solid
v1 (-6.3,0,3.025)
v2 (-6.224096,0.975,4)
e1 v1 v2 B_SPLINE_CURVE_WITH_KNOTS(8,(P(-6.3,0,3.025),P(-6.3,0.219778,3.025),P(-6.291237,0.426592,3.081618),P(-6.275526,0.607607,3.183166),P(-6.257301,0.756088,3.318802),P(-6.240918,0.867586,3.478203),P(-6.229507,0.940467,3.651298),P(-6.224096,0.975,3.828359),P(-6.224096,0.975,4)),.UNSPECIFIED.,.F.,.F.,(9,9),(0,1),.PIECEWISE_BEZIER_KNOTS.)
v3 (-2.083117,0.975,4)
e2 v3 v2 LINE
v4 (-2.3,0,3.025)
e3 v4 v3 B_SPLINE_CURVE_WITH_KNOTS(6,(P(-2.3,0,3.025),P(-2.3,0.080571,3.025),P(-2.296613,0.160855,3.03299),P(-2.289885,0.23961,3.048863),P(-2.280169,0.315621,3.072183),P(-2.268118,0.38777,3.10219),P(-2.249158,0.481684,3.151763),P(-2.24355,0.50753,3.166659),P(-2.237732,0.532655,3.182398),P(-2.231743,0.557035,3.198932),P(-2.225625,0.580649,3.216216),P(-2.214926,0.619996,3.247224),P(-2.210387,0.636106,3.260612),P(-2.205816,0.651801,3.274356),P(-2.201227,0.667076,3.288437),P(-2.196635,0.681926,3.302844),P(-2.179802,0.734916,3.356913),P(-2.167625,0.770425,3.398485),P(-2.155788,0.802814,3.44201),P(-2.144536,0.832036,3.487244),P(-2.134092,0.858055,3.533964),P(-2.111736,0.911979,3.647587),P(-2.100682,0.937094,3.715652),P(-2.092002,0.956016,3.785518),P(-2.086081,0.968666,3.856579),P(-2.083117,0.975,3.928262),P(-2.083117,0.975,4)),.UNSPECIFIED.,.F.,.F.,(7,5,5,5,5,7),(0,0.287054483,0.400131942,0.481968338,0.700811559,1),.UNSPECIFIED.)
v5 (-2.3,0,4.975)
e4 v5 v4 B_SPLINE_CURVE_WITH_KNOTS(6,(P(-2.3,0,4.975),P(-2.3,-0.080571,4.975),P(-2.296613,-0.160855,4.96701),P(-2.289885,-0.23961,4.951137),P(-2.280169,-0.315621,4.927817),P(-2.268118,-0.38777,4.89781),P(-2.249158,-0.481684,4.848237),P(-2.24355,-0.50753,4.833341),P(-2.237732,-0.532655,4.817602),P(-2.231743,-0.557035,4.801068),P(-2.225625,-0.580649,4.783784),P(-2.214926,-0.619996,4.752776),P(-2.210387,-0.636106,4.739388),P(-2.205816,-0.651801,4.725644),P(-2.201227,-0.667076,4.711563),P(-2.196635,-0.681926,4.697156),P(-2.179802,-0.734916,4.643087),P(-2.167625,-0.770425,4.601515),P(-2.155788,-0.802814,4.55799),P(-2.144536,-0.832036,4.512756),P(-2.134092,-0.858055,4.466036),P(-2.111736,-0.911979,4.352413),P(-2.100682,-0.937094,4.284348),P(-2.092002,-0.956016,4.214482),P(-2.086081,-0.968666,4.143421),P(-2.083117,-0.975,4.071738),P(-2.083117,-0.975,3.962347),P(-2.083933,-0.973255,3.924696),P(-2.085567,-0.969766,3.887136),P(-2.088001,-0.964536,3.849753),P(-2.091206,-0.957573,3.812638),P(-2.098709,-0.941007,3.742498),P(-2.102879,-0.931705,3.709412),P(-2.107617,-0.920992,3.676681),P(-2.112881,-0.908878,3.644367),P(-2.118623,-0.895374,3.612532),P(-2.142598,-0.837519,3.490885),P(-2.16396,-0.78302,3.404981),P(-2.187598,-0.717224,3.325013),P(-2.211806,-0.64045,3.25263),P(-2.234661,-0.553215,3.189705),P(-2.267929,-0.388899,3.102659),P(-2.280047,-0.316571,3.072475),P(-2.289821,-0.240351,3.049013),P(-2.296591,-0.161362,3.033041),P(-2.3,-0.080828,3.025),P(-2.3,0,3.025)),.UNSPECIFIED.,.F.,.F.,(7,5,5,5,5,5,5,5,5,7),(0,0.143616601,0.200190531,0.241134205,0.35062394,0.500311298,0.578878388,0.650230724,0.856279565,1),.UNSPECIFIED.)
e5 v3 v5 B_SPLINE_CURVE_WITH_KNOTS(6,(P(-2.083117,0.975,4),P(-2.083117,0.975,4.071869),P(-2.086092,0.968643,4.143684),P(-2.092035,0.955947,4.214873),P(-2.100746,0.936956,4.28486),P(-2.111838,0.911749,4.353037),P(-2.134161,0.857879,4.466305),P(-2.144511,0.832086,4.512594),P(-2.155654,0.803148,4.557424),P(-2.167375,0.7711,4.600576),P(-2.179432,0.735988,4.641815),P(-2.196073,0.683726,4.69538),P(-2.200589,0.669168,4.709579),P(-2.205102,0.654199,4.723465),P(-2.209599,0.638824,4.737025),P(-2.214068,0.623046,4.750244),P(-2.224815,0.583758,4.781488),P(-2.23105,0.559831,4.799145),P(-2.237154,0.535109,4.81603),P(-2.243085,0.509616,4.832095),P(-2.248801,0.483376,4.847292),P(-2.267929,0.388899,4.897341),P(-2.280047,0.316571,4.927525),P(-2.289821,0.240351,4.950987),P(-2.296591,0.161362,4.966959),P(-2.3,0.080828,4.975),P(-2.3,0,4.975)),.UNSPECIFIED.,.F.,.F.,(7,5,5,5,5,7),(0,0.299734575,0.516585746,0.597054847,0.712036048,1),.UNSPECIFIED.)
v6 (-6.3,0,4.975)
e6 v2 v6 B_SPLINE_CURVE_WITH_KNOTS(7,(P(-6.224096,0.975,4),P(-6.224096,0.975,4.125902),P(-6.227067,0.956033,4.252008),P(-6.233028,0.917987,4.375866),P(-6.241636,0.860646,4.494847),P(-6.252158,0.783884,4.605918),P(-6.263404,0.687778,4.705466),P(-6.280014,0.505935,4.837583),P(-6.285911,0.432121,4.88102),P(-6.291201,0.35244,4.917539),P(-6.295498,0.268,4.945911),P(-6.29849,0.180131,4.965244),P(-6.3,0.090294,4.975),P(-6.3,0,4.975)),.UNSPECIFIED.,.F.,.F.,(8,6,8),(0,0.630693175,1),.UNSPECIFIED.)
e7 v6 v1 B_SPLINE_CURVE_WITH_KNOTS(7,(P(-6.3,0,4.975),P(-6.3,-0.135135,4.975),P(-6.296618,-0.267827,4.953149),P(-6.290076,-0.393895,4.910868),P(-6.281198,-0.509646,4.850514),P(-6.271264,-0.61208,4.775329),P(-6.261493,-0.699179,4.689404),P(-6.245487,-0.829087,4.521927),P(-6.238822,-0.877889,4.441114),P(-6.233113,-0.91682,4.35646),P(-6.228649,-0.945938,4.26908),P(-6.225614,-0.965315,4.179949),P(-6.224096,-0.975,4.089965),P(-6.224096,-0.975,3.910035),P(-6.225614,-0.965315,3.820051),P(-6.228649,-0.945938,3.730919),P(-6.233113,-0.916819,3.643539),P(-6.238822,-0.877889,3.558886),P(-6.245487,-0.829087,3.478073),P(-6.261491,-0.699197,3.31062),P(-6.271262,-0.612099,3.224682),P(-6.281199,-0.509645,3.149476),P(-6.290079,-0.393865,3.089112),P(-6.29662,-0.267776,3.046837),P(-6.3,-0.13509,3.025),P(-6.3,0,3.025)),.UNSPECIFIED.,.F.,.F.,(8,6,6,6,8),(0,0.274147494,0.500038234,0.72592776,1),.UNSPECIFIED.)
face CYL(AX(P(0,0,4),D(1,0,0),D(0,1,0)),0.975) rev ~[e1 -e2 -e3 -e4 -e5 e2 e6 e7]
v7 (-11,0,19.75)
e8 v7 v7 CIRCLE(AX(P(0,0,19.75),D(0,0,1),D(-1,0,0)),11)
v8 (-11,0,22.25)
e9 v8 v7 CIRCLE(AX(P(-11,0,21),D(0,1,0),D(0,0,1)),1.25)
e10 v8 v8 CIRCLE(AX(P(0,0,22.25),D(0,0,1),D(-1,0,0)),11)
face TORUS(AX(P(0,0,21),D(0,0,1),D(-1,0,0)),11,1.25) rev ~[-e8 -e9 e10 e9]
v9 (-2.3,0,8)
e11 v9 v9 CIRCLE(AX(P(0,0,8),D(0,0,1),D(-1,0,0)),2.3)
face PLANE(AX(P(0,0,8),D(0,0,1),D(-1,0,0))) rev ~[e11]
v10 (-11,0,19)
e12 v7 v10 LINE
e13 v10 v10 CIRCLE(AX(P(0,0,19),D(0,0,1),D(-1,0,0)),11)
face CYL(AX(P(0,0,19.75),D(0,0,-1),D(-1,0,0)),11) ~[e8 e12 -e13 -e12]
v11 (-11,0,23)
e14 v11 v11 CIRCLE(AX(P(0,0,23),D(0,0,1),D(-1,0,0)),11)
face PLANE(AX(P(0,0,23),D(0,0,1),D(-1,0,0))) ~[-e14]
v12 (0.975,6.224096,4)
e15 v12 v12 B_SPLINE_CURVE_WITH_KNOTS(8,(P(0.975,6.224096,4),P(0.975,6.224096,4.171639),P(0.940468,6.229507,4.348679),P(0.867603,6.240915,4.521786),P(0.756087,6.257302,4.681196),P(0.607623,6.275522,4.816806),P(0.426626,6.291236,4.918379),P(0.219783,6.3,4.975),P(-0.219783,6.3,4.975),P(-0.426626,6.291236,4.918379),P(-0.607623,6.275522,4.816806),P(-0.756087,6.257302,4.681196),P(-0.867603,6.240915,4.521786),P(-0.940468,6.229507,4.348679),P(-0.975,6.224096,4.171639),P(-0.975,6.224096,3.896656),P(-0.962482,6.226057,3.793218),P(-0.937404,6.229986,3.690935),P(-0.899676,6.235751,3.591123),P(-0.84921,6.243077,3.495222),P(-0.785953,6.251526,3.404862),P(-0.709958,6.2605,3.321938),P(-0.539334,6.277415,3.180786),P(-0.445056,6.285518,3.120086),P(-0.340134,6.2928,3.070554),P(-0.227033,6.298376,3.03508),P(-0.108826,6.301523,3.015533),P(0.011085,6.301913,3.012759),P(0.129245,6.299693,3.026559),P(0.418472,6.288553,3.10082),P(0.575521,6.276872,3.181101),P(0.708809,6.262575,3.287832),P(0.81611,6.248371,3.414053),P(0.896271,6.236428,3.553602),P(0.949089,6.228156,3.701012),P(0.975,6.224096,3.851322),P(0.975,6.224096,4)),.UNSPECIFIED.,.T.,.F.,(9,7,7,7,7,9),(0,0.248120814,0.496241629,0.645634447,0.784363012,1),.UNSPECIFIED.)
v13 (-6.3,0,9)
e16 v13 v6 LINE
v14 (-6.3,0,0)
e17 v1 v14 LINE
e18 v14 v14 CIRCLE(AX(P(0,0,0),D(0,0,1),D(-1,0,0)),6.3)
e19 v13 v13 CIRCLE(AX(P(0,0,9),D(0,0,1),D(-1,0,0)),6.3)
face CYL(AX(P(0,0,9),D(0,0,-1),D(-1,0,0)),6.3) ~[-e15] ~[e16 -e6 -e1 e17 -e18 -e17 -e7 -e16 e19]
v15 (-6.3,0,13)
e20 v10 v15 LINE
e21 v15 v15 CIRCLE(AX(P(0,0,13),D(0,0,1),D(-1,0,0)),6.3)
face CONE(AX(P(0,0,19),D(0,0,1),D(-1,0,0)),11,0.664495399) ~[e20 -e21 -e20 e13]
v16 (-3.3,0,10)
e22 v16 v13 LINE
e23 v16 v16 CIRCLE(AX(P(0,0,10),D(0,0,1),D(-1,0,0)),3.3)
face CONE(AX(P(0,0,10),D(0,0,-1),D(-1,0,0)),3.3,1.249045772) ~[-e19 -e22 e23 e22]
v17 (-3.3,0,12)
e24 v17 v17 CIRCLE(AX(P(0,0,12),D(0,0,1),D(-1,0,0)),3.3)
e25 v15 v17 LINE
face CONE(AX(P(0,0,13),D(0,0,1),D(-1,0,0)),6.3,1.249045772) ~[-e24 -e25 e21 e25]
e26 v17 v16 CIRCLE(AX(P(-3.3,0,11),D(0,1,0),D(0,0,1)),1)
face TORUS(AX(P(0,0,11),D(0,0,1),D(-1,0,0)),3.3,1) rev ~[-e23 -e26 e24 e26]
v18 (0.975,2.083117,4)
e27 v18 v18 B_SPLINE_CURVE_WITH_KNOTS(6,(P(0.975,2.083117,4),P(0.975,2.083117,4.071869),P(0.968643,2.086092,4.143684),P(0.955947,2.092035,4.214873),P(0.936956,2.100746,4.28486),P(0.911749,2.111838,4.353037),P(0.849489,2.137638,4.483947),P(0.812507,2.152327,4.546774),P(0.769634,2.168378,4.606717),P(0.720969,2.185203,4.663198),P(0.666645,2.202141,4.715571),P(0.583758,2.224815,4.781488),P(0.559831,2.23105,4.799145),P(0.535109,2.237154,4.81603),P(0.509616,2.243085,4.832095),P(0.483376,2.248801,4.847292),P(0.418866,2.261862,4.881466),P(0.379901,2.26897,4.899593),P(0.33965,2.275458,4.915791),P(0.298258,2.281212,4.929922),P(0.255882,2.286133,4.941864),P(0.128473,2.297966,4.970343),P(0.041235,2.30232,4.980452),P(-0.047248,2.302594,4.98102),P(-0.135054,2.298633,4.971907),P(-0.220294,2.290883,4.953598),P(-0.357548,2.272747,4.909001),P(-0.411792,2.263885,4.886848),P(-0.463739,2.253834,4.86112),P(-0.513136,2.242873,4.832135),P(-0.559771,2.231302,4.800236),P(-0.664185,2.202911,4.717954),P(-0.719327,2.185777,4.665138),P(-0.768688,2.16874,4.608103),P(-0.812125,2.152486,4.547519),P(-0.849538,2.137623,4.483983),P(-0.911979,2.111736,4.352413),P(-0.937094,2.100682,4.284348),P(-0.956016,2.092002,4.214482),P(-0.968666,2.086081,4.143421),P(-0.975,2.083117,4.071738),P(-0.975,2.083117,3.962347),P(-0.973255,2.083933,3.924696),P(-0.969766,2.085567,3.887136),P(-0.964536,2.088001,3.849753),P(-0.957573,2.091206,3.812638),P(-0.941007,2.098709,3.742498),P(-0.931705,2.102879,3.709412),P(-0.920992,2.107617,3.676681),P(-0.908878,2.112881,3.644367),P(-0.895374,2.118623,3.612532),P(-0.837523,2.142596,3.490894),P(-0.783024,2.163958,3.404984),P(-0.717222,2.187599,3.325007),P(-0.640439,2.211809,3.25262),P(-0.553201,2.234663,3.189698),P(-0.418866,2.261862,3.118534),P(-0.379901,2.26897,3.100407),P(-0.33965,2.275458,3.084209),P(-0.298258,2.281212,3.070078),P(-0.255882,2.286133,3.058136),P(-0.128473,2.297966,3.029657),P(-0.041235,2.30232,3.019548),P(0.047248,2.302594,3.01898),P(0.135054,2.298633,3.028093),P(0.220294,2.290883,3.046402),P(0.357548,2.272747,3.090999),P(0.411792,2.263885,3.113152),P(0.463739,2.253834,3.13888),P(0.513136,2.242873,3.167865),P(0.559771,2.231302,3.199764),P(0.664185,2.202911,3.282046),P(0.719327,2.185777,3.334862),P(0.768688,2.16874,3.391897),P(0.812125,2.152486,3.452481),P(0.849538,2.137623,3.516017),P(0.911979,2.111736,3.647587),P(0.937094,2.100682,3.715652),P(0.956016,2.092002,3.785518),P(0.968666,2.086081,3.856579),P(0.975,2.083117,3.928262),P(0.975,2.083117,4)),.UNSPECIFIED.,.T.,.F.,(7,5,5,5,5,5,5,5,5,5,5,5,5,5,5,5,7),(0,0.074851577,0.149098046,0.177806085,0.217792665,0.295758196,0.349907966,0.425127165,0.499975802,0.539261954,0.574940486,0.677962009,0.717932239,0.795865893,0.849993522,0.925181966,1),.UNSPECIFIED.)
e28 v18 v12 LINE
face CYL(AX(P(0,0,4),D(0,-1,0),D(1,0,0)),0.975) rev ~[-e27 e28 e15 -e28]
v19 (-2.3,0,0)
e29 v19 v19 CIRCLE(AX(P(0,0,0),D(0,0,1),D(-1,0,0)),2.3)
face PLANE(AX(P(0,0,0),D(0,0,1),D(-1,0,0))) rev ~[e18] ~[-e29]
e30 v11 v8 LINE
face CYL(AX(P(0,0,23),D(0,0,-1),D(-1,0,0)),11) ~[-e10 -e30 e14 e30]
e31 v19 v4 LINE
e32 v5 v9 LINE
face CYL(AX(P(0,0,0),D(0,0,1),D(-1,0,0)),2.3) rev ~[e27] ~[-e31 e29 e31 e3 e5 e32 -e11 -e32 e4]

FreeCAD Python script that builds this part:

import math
import FreeCAD as App
import Part
import Sketcher
from FreeCAD import Vector
Q = App.Units.Quantity

doc = App.newDocument("Part")
body = doc.addObject("PartDesign::Body", "Body")

sketch1 = body.newObject("Sketcher::SketchObject", "Sketch")
sketch1.AttachmentSupport = (doc.getObject("XZ_Plane"), [""])
sketch1.MapMode = "FlatFace"
sketch1.addGeometry(Part.LineSegment(Vector(-6.3, 0, 0), Vector(-2.3, 0, 0)), False)
sketch1.addGeometry(Part.LineSegment(Vector(-2.3, 0, 0), Vector(-2.3, 8, 0)), False)
sketch1.addGeometry(Part.LineSegment(Vector(-2.3, 8, 0), Vector(0, 8, 0)), False)
sketch1.addGeometry(Part.LineSegment(Vector(0, 8, 0), Vector(0, 23, 0)), False)
sketch1.addGeometry(Part.LineSegment(Vector(0, 23, 0), Vector(-11, 23, 0)), False)
sketch1.addGeometry(Part.LineSegment(Vector(-11, 23, 0), Vector(-11, 22.25, 0)), False)
sketch1.addGeometry(Part.ArcOfCircle(Part.Circle(Vector(-11, 21, 0), Vector(0, 0, 1), 1.25), math.radians(-90), math.radians(90)), False)
sketch1.addGeometry(Part.LineSegment(Vector(-11, 19.75, 0), Vector(-11, 19, 0)), False)
sketch1.addGeometry(Part.LineSegment(Vector(-11, 19, 0), Vector(-6.3, 13, 0)), False)
sketch1.addGeometry(Part.LineSegment(Vector(-6.3, 13, 0), Vector(-3.3, 12, 0)), False)
sketch1.addGeometry(Part.ArcOfCircle(Part.Circle(Vector(-3.3, 11, 0), Vector(0, 0, 1), 1), math.radians(-90), math.radians(90)), False)
sketch1.addGeometry(Part.LineSegment(Vector(-3.3, 10, 0), Vector(-6.3, 9, 0)), False)
sketch1.addGeometry(Part.LineSegment(Vector(-6.3, 9, 0), Vector(-6.3, 0, 0)), False)
sketch1.addConstraint(Sketcher.Constraint("Coincident", 0, 2, 1, 1))
sketch1.addConstraint(Sketcher.Constraint("Coincident", 1, 2, 2, 1))
sketch1.addConstraint(Sketcher.Constraint("Coincident", 2, 2, 3, 1))
sketch1.addConstraint(Sketcher.Constraint("Coincident", 3, 2, 4, 1))
sketch1.addConstraint(Sketcher.Constraint("Coincident", 4, 2, 5, 1))
sketch1.addConstraint(Sketcher.Constraint("Coincident", 5, 2, 6, 2))
sketch1.addConstraint(Sketcher.Constraint("Coincident", 6, 1, 7, 1))
sketch1.addConstraint(Sketcher.Constraint("Coincident", 7, 2, 8, 1))
sketch1.addConstraint(Sketcher.Constraint("Coincident", 8, 2, 9, 1))
sketch1.addConstraint(Sketcher.Constraint("Coincident", 9, 2, 10, 2))
sketch1.addConstraint(Sketcher.Constraint("Coincident", 10, 1, 11, 1))
sketch1.addConstraint(Sketcher.Constraint("Coincident", 11, 2, 12, 1))
sketch1.addConstraint(Sketcher.Constraint("Coincident", 12, 2, 0, 1))
sketch1.addConstraint(Sketcher.Constraint("Horizontal", 0))
sketch1.addConstraint(Sketcher.Constraint("Vertical", 1))
sketch1.addConstraint(Sketcher.Constraint("Horizontal", 2))
sketch1.addConstraint(Sketcher.Constraint("Vertical", 3))
sketch1.addConstraint(Sketcher.Constraint("Horizontal", 4))
sketch1.addConstraint(Sketcher.Constraint("Vertical", 5))
sketch1.addConstraint(Sketcher.Constraint("Vertical", 7))
sketch1.addConstraint(Sketcher.Constraint("Vertical", 12))
sketch1.addConstraint(Sketcher.Constraint("PointOnObject", 0, 2, -1))
sketch1.addConstraint(Sketcher.Constraint("PointOnObject", 2, 2, -2))
sketch1.addConstraint(Sketcher.Constraint("Vertical", 6, 3, 4, 2))
sketch1.addConstraint(Sketcher.Constraint("Vertical", 5, 2, 6, 1))
sketch1.addConstraint(Sketcher.Constraint("Vertical", 10, 3, 9, 2))
sketch1.addConstraint(Sketcher.Constraint("Vertical", 9, 2, 10, 1))
sketch1.addConstraint(Sketcher.Constraint("Vertical", 8, 2, 11, 2))
sketch1.addConstraint(Sketcher.Constraint("Equal", 5, 7))
sketch1.addConstraint(Sketcher.Constraint("Equal", 9, 11))
sketch1.addConstraint(Sketcher.Constraint("Radius", 10, Q("1 mm")))
sketch1.addConstraint(Sketcher.Constraint("DistanceX", 0, 1, 0, 2, Q("4 mm")))
sketch1.addConstraint(Sketcher.Constraint("DistanceX", 4, 2, 4, 1, Q("11 mm")))
sketch1.addConstraint(Sketcher.Constraint("DistanceY", 1, 1, 1, 2, Q("8 mm")))
sketch1.addConstraint(Sketcher.Constraint("DistanceY", 3, 1, 3, 2, Q("15 mm")))
sketch1.addConstraint(Sketcher.Constraint("DistanceY", 12, 2, 12, 1, Q("9 mm")))
sketch1.addConstraint(Sketcher.Constraint("Radius", 6, Q("1.25 mm")))
sketch1.addConstraint(Sketcher.Constraint("DistanceX", 2, 1, 2, 2, Q("2.3 mm")))
sketch1.addConstraint(Sketcher.Constraint("DistanceY", -1, 1, 6, 3, Q("21 mm")))
sketch1.addConstraint(Sketcher.Constraint("DistanceY", -1, 1, 10, 3, Q("11 mm")))
sketch1.addConstraint(Sketcher.Constraint("DistanceX", 10, 3, 0, 2, Q("1 mm")))
revolution = body.newObject("PartDesign::Revolution", "Revolution")
revolution.Profile = sketch1
revolution.ReferenceAxis = (sketch1, ["V_Axis"])
revolution.Angle = 360

sketch2 = body.newObject("Sketcher::SketchObject", "Sketch001")
sketch2.AttachmentSupport = (doc.getObject("XZ_Plane"), [""])
sketch2.MapMode = "FlatFace"
sketch2.addGeometry(Part.Circle(Vector(0, 4, 0), Vector(0, 0, 1), 0.975), False)
sketch2.addConstraint(Sketcher.Constraint("PointOnObject", 0, 3, -2))
sketch2.addConstraint(Sketcher.Constraint("Diameter", 0, Q("1.95 mm")))
sketch2.addConstraint(Sketcher.Constraint("DistanceY", -1, 1, 0, 3, Q("4 mm")))
pocket1 = body.newObject("PartDesign::Pocket", "Pocket")
pocket1.Profile = sketch2
pocket1.Length = 6.6

sketch3 = body.newObject("Sketcher::SketchObject", "Sketch002")
sketch3.AttachmentSupport = (doc.getObject("YZ_Plane"), [""])
sketch3.MapMode = "FlatFace"
sketch3.addGeometry(Part.Circle(Vector(0, 4, 0), Vector(0, 0, 1), 0.975), False)
sketch3.addConstraint(Sketcher.Constraint("PointOnObject", 0, 3, -2))
sketch3.addConstraint(Sketcher.Constraint("Diameter", 0, Q("1.95 mm")))
sketch3.addConstraint(Sketcher.Constraint("DistanceY", -1, 1, 0, 3, Q("4 mm")))
pocket2 = body.newObject("PartDesign::Pocket", "Pocket001")
pocket2.Profile = sketch3
pocket2.Length = 6.6

doc.recompute()
